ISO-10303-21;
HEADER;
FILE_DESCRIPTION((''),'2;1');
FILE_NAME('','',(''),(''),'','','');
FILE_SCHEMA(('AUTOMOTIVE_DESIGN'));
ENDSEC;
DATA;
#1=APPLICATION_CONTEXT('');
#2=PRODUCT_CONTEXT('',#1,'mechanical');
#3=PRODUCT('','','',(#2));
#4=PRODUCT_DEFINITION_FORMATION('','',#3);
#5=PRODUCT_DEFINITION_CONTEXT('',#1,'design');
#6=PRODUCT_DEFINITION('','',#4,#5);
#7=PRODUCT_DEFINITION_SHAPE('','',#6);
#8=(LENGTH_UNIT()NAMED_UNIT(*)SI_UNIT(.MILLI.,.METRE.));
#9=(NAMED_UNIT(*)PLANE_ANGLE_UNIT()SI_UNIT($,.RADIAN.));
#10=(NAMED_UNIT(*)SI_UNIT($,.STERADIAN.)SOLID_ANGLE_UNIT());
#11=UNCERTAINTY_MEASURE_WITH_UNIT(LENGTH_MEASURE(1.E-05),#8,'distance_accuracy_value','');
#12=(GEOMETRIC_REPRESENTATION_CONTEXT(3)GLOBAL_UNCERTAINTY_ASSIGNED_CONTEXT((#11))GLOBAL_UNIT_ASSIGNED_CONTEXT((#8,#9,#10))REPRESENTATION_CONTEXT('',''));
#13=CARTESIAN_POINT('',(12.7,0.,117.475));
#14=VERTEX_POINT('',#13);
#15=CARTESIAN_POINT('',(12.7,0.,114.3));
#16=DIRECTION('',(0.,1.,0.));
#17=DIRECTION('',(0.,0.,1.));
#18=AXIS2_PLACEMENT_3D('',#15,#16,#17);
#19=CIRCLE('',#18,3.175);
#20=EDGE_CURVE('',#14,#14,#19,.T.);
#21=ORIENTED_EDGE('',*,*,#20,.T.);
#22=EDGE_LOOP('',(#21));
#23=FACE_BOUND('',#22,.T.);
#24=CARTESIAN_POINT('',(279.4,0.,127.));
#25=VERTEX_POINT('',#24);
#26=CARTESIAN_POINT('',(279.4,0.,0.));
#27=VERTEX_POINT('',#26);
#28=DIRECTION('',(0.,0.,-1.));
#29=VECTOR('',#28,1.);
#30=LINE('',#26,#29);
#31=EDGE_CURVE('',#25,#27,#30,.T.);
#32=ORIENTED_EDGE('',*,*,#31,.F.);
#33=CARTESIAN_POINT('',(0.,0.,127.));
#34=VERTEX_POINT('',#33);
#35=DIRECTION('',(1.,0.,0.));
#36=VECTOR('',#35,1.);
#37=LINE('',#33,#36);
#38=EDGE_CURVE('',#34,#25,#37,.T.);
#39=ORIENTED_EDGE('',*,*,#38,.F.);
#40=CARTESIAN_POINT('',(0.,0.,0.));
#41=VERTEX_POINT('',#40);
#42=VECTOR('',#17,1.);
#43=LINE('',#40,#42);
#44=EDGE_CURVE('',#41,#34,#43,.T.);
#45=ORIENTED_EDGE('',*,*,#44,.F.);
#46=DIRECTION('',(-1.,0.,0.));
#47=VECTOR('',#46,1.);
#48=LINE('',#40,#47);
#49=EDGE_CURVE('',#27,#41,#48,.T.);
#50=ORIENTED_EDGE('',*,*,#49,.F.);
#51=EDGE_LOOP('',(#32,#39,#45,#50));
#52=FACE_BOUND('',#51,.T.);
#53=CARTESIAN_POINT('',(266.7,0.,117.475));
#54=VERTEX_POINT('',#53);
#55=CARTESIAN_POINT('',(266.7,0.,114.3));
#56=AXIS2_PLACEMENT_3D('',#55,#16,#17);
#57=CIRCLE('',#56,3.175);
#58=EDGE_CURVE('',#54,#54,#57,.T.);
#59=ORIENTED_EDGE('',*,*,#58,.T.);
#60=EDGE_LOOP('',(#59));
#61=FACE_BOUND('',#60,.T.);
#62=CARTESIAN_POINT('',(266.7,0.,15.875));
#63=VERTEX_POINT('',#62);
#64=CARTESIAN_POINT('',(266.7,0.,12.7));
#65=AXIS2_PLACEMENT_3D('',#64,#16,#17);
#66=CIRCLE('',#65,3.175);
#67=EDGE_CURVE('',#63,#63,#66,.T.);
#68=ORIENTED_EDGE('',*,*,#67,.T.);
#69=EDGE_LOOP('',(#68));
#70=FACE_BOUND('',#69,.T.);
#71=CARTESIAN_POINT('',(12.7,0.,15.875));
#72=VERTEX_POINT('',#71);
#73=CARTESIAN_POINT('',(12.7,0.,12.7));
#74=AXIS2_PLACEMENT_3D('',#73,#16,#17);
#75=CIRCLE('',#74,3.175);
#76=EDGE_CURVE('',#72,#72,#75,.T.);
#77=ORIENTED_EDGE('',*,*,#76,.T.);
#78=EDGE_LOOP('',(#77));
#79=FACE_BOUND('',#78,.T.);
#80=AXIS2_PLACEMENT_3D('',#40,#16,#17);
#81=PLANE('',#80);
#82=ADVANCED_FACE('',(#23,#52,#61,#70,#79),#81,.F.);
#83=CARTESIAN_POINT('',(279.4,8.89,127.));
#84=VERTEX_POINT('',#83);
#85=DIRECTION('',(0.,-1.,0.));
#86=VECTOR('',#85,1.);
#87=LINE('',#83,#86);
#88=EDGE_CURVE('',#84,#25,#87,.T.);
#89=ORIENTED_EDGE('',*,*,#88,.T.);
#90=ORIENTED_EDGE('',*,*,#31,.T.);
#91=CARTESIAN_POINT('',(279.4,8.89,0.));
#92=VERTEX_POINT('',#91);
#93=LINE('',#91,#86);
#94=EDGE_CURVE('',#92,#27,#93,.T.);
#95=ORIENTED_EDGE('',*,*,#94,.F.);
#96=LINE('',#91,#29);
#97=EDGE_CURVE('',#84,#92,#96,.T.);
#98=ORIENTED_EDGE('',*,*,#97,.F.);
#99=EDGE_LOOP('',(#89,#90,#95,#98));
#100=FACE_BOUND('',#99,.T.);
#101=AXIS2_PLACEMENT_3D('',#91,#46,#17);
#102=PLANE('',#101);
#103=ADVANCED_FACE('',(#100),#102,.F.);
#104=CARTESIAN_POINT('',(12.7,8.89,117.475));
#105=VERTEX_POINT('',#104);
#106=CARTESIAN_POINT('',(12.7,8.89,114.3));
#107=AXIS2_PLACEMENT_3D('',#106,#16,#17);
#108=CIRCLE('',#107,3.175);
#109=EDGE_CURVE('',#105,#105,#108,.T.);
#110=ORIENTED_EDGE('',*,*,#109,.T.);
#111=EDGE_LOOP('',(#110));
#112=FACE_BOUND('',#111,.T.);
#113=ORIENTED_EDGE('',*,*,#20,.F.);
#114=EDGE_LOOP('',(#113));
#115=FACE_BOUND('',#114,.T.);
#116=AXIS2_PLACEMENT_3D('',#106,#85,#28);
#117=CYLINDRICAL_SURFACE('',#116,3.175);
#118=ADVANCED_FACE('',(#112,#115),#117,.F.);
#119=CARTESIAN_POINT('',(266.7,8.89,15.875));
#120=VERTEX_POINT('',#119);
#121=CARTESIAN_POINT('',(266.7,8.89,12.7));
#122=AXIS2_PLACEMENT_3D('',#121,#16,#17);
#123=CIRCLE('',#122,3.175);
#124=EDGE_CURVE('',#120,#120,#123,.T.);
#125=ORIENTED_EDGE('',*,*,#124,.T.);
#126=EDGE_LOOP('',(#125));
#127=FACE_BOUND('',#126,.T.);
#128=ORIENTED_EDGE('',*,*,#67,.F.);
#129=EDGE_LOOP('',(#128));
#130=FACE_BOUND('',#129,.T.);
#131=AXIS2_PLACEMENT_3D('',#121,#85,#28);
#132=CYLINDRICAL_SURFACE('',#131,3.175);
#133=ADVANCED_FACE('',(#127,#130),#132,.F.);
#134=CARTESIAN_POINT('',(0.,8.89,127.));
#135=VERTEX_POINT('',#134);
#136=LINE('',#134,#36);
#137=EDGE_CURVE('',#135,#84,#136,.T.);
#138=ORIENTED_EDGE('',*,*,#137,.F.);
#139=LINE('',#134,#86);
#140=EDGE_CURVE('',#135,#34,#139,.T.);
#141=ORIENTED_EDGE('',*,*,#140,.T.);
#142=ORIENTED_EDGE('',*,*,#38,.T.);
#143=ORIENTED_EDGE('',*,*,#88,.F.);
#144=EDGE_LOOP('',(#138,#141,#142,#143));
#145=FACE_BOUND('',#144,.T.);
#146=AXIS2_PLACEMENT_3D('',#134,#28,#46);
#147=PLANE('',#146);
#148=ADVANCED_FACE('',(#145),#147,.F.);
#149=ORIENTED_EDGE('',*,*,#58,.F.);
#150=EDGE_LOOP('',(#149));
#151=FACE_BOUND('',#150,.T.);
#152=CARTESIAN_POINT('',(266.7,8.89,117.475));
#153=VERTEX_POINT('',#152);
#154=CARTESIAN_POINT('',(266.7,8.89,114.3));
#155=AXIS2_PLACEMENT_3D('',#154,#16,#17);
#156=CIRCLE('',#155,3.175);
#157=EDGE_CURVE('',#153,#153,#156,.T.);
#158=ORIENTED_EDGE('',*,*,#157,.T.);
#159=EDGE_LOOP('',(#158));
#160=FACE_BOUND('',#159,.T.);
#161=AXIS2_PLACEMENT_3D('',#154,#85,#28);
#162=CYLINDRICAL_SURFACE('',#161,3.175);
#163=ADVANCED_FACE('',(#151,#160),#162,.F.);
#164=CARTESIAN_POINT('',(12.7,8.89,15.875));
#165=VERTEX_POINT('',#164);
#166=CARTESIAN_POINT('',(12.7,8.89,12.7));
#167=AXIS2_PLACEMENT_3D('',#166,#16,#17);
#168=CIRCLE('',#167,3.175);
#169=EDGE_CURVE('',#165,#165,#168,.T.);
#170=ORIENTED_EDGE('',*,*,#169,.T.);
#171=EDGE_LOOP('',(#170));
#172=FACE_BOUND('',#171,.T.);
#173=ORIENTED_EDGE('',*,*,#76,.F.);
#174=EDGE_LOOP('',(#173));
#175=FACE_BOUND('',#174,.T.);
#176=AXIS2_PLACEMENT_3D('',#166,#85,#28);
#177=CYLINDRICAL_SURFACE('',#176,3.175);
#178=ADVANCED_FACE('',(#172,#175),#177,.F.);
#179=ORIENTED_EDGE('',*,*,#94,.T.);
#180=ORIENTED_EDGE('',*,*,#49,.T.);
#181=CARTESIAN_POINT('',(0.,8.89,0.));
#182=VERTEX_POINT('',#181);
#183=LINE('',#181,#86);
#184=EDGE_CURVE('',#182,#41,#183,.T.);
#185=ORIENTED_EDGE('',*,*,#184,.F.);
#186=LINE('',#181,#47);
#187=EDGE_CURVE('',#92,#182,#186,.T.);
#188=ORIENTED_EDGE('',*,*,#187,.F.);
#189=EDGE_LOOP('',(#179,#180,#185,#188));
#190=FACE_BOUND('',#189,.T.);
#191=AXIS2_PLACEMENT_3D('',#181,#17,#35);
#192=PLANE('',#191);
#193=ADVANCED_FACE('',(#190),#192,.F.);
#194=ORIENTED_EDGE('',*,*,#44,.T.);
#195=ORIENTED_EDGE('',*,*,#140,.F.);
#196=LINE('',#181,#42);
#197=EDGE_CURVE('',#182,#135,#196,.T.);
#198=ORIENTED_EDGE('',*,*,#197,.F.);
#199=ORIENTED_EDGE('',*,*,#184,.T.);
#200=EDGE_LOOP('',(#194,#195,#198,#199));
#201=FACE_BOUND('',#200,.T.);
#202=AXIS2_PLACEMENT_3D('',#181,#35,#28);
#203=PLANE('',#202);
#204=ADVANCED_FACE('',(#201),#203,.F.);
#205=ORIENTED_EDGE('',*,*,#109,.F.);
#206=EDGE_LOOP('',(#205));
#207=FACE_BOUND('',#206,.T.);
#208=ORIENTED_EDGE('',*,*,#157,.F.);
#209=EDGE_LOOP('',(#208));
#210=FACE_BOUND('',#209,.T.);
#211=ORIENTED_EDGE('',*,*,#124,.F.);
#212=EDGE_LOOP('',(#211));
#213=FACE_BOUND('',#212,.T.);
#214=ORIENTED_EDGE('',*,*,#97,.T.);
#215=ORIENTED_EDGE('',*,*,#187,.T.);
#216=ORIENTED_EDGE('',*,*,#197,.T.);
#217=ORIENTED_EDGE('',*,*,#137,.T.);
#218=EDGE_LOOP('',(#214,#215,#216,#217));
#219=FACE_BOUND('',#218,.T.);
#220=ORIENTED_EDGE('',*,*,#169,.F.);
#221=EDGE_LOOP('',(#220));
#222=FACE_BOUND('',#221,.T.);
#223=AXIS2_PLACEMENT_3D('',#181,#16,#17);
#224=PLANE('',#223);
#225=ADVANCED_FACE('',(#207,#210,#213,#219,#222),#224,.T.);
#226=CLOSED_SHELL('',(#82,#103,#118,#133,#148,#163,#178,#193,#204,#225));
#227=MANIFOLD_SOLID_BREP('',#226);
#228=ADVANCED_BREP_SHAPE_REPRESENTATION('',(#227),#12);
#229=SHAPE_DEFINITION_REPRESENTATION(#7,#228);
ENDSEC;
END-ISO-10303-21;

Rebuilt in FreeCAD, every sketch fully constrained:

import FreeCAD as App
import Part
import Sketcher
Q = App.Units.Quantity

doc = App.newDocument("Part")
params = doc.addObject("Spreadsheet::Sheet", "Params")
for row, (alias, value) in enumerate([
    ("sketch1_diameter", "0.25 in"),
    ("sketch1_width", "11 in"),
    ("sketch1_height", "5 in"),
    ("pad1_length", "0.35 in"),
], start=1):
    params.set(f"A{row}", alias)
    params.set(f"B{row}", "=" + value)
    params.setAlias(f"B{row}", alias)

body = doc.addObject("PartDesign::Body", "Body")

# Sketch on XZ plane
sketch1 = body.newObject("Sketcher::SketchObject", "Sketch")
sketch1.AttachmentSupport = (doc.getObject("XZ_Plane"), [""])
sketch1.MapMode = "FlatFace"
sketch1.addGeometry([
    Part.LineSegment(App.Vector(0, 0, 0), App.Vector(0, 127, 0)),  # 0
    Part.LineSegment(App.Vector(0, 127, 0), App.Vector(279.4, 127, 0)),  # 1
    Part.LineSegment(App.Vector(279.4, 127, 0), App.Vector(279.4, 0, 0)),  # 2
    Part.LineSegment(App.Vector(279.4, 0, 0), App.Vector(0, 0, 0)),  # 3
    Part.Circle(App.Vector(12.7, 114.3, 0), App.Vector(0, 0, 1), 3.2),  # 4
    Part.Circle(App.Vector(266.7, 114.3, 0), App.Vector(0, 0, 1), 3.2),  # 5
    Part.Circle(App.Vector(12.7, 12.7, 0), App.Vector(0, 0, 1), 3.2),  # 6
    Part.Circle(App.Vector(266.7, 12.7, 0), App.Vector(0, 0, 1), 3.2),  # 7
], False)
sketch1.addConstraint([
    Sketcher.Constraint("Coincident", 0, 2, 1, 1),
    Sketcher.Constraint("Coincident", 1, 2, 2, 1),
    Sketcher.Constraint("Coincident", 2, 2, 3, 1),
    Sketcher.Constraint("Coincident", 3, 2, 0, 1),
    Sketcher.Constraint("Vertical", 0),
    Sketcher.Constraint("Horizontal", 1),
    Sketcher.Constraint("Vertical", 2),
    Sketcher.Constraint("Horizontal", 3),
    Sketcher.Constraint("Coincident", 3, 2, -1, 1),
    Sketcher.Constraint("Equal", 4, 5),
    Sketcher.Constraint("Equal", 5, 6),
    Sketcher.Constraint("Equal", 6, 7),
    Sketcher.Constraint("Horizontal", 4, 3, 5, 3),
    Sketcher.Constraint("Horizontal", 6, 3, 7, 3),
    Sketcher.Constraint("Vertical", 4, 3, 6, 3),
    Sketcher.Constraint("Vertical", 5, 3, 7, 3),
    Sketcher.Constraint("Diameter", 4, Q("0.25 in")),
    Sketcher.Constraint("DistanceX", 1, 1, 1, 2, Q("11 in")),
    Sketcher.Constraint("DistanceY", 0, 1, 0, 2, Q("5 in")),
    Sketcher.Constraint("DistanceX", 4, 3, 5, 3, Q("10 in")),
    Sketcher.Constraint("DistanceY", 6, 3, 4, 3, Q("4 in")),
    Sketcher.Constraint("DistanceX", -1, 1, 4, 3, Q("0.5 in")),
    Sketcher.Constraint("DistanceY", -1, 1, 4, 3, Q("4.5 in")),
])
sketch1.setExpression("Constraints[16]", "Params.sketch1_diameter")
sketch1.setExpression("Constraints[17]", "Params.sketch1_width")
sketch1.setExpression("Constraints[18]", "Params.sketch1_height")
pad1 = body.newObject("PartDesign::Pad", "Pad")
pad1.Profile = sketch1
pad1.setExpression("Length", "Params.pad1_length")
pad1.Reversed = True

doc.recompute()
